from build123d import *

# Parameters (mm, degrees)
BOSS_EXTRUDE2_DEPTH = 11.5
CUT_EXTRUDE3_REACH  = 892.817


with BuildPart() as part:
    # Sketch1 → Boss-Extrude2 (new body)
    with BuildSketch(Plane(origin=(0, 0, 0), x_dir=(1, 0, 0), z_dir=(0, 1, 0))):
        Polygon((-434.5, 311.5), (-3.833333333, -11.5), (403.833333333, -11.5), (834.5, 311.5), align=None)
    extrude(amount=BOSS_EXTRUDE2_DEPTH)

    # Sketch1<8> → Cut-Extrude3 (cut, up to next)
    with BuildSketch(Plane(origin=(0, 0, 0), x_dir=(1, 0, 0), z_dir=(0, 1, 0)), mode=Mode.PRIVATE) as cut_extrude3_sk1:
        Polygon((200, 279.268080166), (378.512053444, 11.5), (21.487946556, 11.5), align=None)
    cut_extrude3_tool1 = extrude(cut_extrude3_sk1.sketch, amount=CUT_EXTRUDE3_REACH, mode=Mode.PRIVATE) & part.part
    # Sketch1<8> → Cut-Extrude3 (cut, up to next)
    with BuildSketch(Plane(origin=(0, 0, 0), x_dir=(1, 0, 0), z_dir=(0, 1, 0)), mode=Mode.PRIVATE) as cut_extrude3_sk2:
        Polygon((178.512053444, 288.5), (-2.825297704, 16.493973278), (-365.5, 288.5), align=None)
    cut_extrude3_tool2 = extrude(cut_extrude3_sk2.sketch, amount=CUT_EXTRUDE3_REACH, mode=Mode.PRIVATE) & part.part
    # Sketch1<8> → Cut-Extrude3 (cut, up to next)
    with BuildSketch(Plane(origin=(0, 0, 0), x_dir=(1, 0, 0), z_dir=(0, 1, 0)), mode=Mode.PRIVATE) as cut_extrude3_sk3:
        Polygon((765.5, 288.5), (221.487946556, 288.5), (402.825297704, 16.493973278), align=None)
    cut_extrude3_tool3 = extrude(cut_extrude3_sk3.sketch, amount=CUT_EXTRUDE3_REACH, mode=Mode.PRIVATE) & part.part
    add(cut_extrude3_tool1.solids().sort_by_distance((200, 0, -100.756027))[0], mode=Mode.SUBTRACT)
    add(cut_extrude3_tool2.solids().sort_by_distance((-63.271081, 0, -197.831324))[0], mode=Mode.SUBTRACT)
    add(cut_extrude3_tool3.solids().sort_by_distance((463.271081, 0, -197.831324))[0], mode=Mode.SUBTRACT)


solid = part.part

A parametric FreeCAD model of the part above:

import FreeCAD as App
import Part
import Sketcher
Q = App.Units.Quantity


def add_polygon(sketch, points):
    """Adds a closed chain of lines whose ends are joined by coincident constraints."""
    first, n = sketch.GeometryCount, len(points)
    for a, b in zip(points, points[1:] + points[:1]):
        sketch.addGeometry(Part.LineSegment(App.Vector(*a, 0), App.Vector(*b, 0)), False)
    for i in range(n):
        sketch.addConstraint(Sketcher.Constraint("Coincident", first + i, 2, first + (i + 1) % n, 1))

doc = App.newDocument("Part")
params = doc.addObject("Spreadsheet::Sheet", "Params")
for row, (alias, value) in enumerate([
    ("sketch1_width", "1269 mm"),
    ("pad1_length", "11.5 mm"),
], start=1):
    params.set(f"A{row}", alias)
    params.set(f"B{row}", "=" + value)
    params.setAlias(f"B{row}", alias)

body = doc.addObject("PartDesign::Body", "Body")

# Sketch on XZ plane
sketch1 = body.newObject("Sketcher::SketchObject", "Sketch")
sketch1.AttachmentSupport = (doc.getObject("XZ_Plane"), [""])
sketch1.MapMode = "FlatFace"
add_polygon(sketch1, [(-434.5, -311.5), (-3.833333, 11.5), (403.833333, 11.5), (834.5, -311.5)])  # lines 0-3
sketch1.addConstraint([
    Sketcher.Constraint("Horizontal", 1),
    Sketcher.Constraint("Horizontal", 3),
    Sketcher.Constraint("Equal", 0, 2),
    Sketcher.Constraint("DistanceX", 3, 2, 3, 1, Q("1269 mm")),
    Sketcher.Constraint("DistanceY", 2, 2, 1, 2, Q("323 mm")),
    Sketcher.Constraint("DistanceY", -1, 1, 0, 2, Q("11.5 mm")),
    Sketcher.Constraint("DistanceX", -1, 1, 2, 2, Q("834.5 mm")),
    Sketcher.Constraint("DistanceX", 1, 1, 1, 2, Q("407.666667 mm")),
])
sketch1.setExpression("Constraints[7]", "Params.sketch1_width")
pad1 = body.newObject("PartDesign::Pad", "Pad")
pad1.Profile = sketch1
pad1.setExpression("Length", "Params.pad1_length")
pad1.Reversed = True

# Sketch on XZ plane
sketch2 = body.newObject("Sketcher::SketchObject", "Sketch001")
sketch2.AttachmentSupport = (doc.getObject("XZ_Plane"), [""])
sketch2.MapMode = "FlatFace"
add_polygon(sketch2, [(378.512053, -11.5), (200, -279.26808), (21.487947, -11.5)])  # lines 0-2
sketch2.addConstraint([
    Sketcher.Constraint("Horizontal", 2),
    Sketcher.Constraint("Equal", 0, 1),
    Sketcher.Constraint("DistanceX", -1, 1, 0, 2, Q("200 mm")),
    Sketcher.Constraint("DistanceY", 1, 2, -1, 1, Q("11.5 mm")),
    Sketcher.Constraint("Distance", 0, Q("321.817181 mm")),
    Sketcher.Constraint("DistanceX", 2, 1, 2, 2, Q("357.024107 mm")),
])
pocket1 = body.newObject("PartDesign::Pocket", "Pocket")
pocket1.Profile = sketch2
pocket1.Type = "UpToFirst"

# Sketch on XZ plane
sketch3 = body.newObject("Sketcher::SketchObject", "Sketch002")
sketch3.AttachmentSupport = (doc.getObject("XZ_Plane"), [""])
sketch3.MapMode = "FlatFace"
add_polygon(sketch3, [(-2.825298, -16.493973), (178.512053, -288.5), (-365.5, -288.5)])  # lines 0-2
sketch3.addConstraint([
    Sketcher.Constraint("Horizontal", 1),
    Sketcher.Constraint("DistanceY", 0, 2, -1, 1, Q("288.5 mm")),
    Sketcher.Constraint("DistanceX", 1, 2, -1, 1, Q("365.5 mm")),
    Sketcher.Constraint("Distance", 0, Q("326.910559 mm")),
    Sketcher.Constraint("DistanceX", 1, 2, 1, 1, Q("544.012053 mm")),
    Sketcher.Constraint("DistanceX", 2, 2, 0, 2, Q("181.337351 mm")),
])
pocket2 = body.newObject("PartDesign::Pocket", "Pocket001")
pocket2.Profile = sketch3
pocket2.Type = "UpToFirst"

# Sketch on XZ plane
sketch4 = body.newObject("Sketcher::SketchObject", "Sketch003")
sketch4.AttachmentSupport = (doc.getObject("XZ_Plane"), [""])
sketch4.MapMode = "FlatFace"
add_polygon(sketch4, [(765.5, -288.5), (221.487947, -288.5), (402.825298, -16.493973)])  # lines 0-2
sketch4.addConstraint([
    Sketcher.Constraint("Horizontal", 0),
    Sketcher.Constraint("DistanceY", 0, 2, -1, 1, Q("288.5 mm")),
    Sketcher.Constraint("DistanceX", -1, 1, 2, 2, Q("765.5 mm")),
    Sketcher.Constraint("Distance", 1, Q("326.910559 mm")),
    Sketcher.Constraint("DistanceX", 0, 2, 0, 1, Q("544.012053 mm")),
    Sketcher.Constraint("DistanceX", 0, 2, 1, 2, Q("181.337351 mm")),
])
pocket3 = body.newObject("PartDesign::Pocket", "Pocket002")
pocket3.Profile = sketch4
pocket3.Type = "UpToFirst"

doc.recompute()
